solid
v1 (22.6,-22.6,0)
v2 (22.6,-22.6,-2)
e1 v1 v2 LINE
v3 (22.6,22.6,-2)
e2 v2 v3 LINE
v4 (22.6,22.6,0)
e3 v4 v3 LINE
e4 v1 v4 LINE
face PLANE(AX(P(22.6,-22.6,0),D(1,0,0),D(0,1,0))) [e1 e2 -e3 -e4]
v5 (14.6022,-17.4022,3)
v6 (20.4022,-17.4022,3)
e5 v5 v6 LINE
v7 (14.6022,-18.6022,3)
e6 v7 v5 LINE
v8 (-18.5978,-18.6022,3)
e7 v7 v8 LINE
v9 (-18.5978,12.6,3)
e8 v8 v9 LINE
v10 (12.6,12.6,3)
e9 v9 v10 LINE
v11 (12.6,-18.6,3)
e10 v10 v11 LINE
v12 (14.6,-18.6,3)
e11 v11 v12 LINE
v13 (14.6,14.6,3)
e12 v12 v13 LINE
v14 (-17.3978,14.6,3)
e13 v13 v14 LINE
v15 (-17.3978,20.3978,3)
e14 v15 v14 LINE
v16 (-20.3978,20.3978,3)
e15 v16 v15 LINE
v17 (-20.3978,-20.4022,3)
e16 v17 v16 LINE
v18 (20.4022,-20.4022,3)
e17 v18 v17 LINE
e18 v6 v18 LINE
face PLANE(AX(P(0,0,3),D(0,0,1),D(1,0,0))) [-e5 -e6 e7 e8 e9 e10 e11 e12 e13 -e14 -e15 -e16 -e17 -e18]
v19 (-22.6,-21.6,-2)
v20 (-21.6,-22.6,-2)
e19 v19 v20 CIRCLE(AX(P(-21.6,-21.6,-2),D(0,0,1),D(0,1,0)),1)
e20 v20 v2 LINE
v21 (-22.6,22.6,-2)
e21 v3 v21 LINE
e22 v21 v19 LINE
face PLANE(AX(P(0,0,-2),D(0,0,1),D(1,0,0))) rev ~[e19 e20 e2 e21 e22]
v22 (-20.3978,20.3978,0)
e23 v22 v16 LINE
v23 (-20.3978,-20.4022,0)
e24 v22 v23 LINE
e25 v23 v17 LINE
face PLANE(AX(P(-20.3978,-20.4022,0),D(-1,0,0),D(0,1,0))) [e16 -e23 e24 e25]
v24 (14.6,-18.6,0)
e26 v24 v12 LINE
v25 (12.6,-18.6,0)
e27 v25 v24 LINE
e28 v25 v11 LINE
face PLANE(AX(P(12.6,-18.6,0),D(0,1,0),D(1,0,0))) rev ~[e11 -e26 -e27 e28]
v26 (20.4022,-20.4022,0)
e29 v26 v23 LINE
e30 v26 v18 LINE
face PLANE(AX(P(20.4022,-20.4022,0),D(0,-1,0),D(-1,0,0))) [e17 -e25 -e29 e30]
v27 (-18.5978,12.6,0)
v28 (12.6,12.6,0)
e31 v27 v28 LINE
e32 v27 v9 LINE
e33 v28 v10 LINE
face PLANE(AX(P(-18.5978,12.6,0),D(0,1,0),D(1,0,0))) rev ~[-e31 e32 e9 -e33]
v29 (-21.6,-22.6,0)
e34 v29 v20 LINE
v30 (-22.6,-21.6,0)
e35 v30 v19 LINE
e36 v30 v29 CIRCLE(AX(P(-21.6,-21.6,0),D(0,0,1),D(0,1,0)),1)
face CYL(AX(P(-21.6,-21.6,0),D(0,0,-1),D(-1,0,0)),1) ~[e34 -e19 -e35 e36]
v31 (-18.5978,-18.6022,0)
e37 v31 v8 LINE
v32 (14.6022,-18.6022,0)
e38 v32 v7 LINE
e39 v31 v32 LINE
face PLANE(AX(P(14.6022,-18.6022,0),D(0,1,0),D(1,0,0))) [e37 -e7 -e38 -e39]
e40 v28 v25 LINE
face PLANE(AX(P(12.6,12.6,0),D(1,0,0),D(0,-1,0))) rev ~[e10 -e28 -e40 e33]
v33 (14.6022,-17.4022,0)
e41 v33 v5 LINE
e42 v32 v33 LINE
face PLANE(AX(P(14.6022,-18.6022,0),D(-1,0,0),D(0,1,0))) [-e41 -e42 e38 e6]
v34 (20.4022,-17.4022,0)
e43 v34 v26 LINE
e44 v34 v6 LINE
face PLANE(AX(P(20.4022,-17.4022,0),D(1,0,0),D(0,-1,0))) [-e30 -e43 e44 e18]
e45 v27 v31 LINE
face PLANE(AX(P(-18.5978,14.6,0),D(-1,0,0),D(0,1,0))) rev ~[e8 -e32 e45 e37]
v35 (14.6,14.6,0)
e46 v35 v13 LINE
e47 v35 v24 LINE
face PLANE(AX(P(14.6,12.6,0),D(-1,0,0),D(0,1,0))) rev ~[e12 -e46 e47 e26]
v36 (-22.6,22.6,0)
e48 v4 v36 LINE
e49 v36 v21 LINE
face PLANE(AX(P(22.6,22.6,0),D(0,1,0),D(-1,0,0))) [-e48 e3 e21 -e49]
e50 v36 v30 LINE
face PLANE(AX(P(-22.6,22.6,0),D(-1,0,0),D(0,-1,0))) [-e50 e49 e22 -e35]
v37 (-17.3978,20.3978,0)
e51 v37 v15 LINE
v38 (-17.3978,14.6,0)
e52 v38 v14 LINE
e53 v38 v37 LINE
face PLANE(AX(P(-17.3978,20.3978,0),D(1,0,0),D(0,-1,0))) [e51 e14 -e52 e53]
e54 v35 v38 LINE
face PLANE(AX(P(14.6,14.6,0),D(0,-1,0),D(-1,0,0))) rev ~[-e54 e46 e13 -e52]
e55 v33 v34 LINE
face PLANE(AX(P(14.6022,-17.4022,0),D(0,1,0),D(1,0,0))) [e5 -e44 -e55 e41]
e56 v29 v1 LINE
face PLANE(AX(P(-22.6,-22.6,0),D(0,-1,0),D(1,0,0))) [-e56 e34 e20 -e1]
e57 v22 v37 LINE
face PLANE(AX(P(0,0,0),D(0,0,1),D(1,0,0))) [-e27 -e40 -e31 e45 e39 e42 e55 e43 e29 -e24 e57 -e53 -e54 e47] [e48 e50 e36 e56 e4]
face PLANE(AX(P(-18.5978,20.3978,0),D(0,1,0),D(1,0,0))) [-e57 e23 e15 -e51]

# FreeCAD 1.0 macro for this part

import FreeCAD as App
import Part
import Sketcher

V = App.Vector
Q = App.Units.Quantity


def edges_at(feature, points):
    """Names of the edges that pass closest to the given points."""
    edges = feature.Shape.Edges
    near = lambda p: min(range(len(edges)), key=lambda i: edges[i].distToShape(Part.Vertex(*p))[0])
    return sorted({f"Edge{near(p) + 1}" for p in points})

doc = App.newDocument("Part")
body = doc.addObject("PartDesign::Body", "Body")

sketch1 = doc.addObject("Sketcher::SketchObject", "Sketch")
body.addObject(sketch1)
sketch1.AttachmentSupport = (doc.XY_Plane, [""])
sketch1.MapMode = "FlatFace"
sketch1.addGeometry(Part.LineSegment(V(-20.4, -20.4, 0), V(20.4, -20.4, 0)), False)
sketch1.addGeometry(Part.LineSegment(V(20.4, -20.4, 0), V(20.4, -18.6, 0)), False)
sketch1.addGeometry(Part.LineSegment(V(20.4, -18.6, 0), V(-18.6, -18.6, 0)), False)
sketch1.addGeometry(Part.LineSegment(V(-18.6, -18.6, 0), V(-18.6, 20.4, 0)), False)
sketch1.addGeometry(Part.LineSegment(V(-18.6, 20.4, 0), V(-20.4, 20.4, 0)), False)
sketch1.addGeometry(Part.LineSegment(V(-20.4, 20.4, 0), V(-20.4, -20.4, 0)), False)
sketch1.addConstraint(Sketcher.Constraint("Coincident", 0, 2, 1, 1))
sketch1.addConstraint(Sketcher.Constraint("Coincident", 1, 2, 2, 1))
sketch1.addConstraint(Sketcher.Constraint("Coincident", 2, 2, 3, 1))
sketch1.addConstraint(Sketcher.Constraint("Coincident", 3, 2, 4, 1))
sketch1.addConstraint(Sketcher.Constraint("Coincident", 4, 2, 5, 1))
sketch1.addConstraint(Sketcher.Constraint("Coincident", 5, 2, 0, 1))
sketch1.addConstraint(Sketcher.Constraint("Horizontal", 0))
sketch1.addConstraint(Sketcher.Constraint("Vertical", 1))
sketch1.addConstraint(Sketcher.Constraint("Horizontal", 2))
sketch1.addConstraint(Sketcher.Constraint("Vertical", 3))
sketch1.addConstraint(Sketcher.Constraint("Horizontal", 4))
sketch1.addConstraint(Sketcher.Constraint("Vertical", 5))
sketch1.addConstraint(Sketcher.Constraint("Equal", 4, 1))
sketch1.addConstraint(Sketcher.Constraint("Equal", 2, 3))
sketch1.addConstraint(Sketcher.Constraint("DistanceX", 2, 2, 2, 1, Q("39 mm")))
sketch1.addConstraint(Sketcher.Constraint("DistanceX", 4, 2, 4, 1, Q("1.8 mm")))
sketch1.addConstraint(Sketcher.Constraint("DistanceX", -1, 1, 0, 2, Q("20.4022 mm")))
sketch1.addConstraint(Sketcher.Constraint("DistanceY", 0, 2, -1, 1, Q("20.4022 mm")))
pad1 = doc.addObject("PartDesign::Pad", "Pad")
body.addObject(pad1)
pad1.Profile = sketch1
pad1.Length = 3

sketch2 = doc.addObject("Sketcher::SketchObject", "Sketch001")
body.addObject(sketch2)
sketch2.AttachmentSupport = (doc.XY_Plane, [""])
sketch2.MapMode = "FlatFace"
sketch2.addGeometry(Part.LineSegment(V(-23, 23, 0), V(-23, -23, 0)), False)
sketch2.addGeometry(Part.LineSegment(V(-23, -23, 0), V(23, -23, 0)), False)
sketch2.addGeometry(Part.LineSegment(V(23, -23, 0), V(23, 23, 0)), False)
sketch2.addGeometry(Part.LineSegment(V(23, 23, 0), V(-23, 23, 0)), False)
sketch2.addConstraint(Sketcher.Constraint("Coincident", 0, 2, 1, 1))
sketch2.addConstraint(Sketcher.Constraint("Coincident", 1, 2, 2, 1))
sketch2.addConstraint(Sketcher.Constraint("Coincident", 2, 2, 3, 1))
sketch2.addConstraint(Sketcher.Constraint("Coincident", 3, 2, 0, 1))
sketch2.addConstraint(Sketcher.Constraint("Vertical", 0))
sketch2.addConstraint(Sketcher.Constraint("Horizontal", 1))
sketch2.addConstraint(Sketcher.Constraint("Vertical", 2))
sketch2.addConstraint(Sketcher.Constraint("Horizontal", 3))
sketch2.addConstraint(Sketcher.Constraint("Symmetric", 0, 2, 2, 2, -1, 1))
sketch2.addConstraint(Sketcher.Constraint("Equal", 3, 0))
sketch2.addConstraint(Sketcher.Constraint("DistanceX", 1, 1, 1, 2, Q("45.2 mm")))
pad2 = doc.addObject("PartDesign::Pad", "Pad001")
body.addObject(pad2)
pad2.Profile = sketch2
pad2.Length = 2
pad2.Reversed = True

sketch3 = doc.addObject("Sketcher::SketchObject", "Sketch002")
body.addObject(sketch3)
sketch3.AttachmentSupport = (doc.XY_Plane, [""])
sketch3.MapMode = "FlatFace"
sketch3.addGeometry(Part.LineSegment(V(14.6, -18.6, 0), V(20.4, -18.6, 0)), False)
sketch3.addGeometry(Part.LineSegment(V(20.4, -18.6, 0), V(20.4, -17.4, 0)), False)
sketch3.addGeometry(Part.LineSegment(V(20.4, -17.4, 0), V(14.6, -17.4, 0)), False)
sketch3.addGeometry(Part.LineSegment(V(14.6, -17.4, 0), V(14.6, -18.6, 0)), False)
sketch3.addGeometry(Part.LineSegment(V(-17.4, 20.4, 0), V(-18.6, 20.4, 0)), False)
sketch3.addGeometry(Part.LineSegment(V(-18.6, 20.4, 0), V(-18.6, 14.6, 0)), False)
sketch3.addGeometry(Part.LineSegment(V(-18.6, 14.6, 0), V(-17.4, 14.6, 0)), False)
sketch3.addGeometry(Part.LineSegment(V(-17.4, 14.6, 0), V(-17.4, 20.4, 0)), False)
sketch3.addConstraint(Sketcher.Constraint("Coincident", 0, 2, 1, 1))
sketch3.addConstraint(Sketcher.Constraint("Coincident", 1, 2, 2, 1))
sketch3.addConstraint(Sketcher.Constraint("Coincident", 2, 2, 3, 1))
sketch3.addConstraint(Sketcher.Constraint("Coincident", 3, 2, 0, 1))
sketch3.addConstraint(Sketcher.Constraint("Coincident", 4, 2, 5, 1))
sketch3.addConstraint(Sketcher.Constraint("Coincident", 5, 2, 6, 1))
sketch3.addConstraint(Sketcher.Constraint("Coincident", 6, 2, 7, 1))
sketch3.addConstraint(Sketcher.Constraint("Coincident", 7, 2, 4, 1))
sketch3.addConstraint(Sketcher.Constraint("Horizontal", 0))
sketch3.addConstraint(Sketcher.Constraint("Vertical", 1))
sketch3.addConstraint(Sketcher.Constraint("Horizontal", 2))
sketch3.addConstraint(Sketcher.Constraint("Vertical", 3))
sketch3.addConstraint(Sketcher.Constraint("Horizontal", 4))
sketch3.addConstraint(Sketcher.Constraint("Vertical", 5))
sketch3.addConstraint(Sketcher.Constraint("Horizontal", 6))
sketch3.addConstraint(Sketcher.Constraint("Vertical", 7))
sketch3.addConstraint(Sketcher.Constraint("Equal", 6, 1))
sketch3.addConstraint(Sketcher.Constraint("Equal", 2, 5))
sketch3.addConstraint(Sketcher.Constraint("DistanceX", 0, 1, 0, 2, Q("5.8 mm")))
sketch3.addConstraint(Sketcher.Constraint("DistanceX", 4, 2, 4, 1, Q("1.2 mm")))
sketch3.addConstraint(Sketcher.Constraint("DistanceY", 3, 2, 4, 2, Q("39 mm")))
sketch3.addConstraint(Sketcher.Constraint("DistanceX", 4, 2, 1, 2, Q("39 mm")))
sketch3.addConstraint(Sketcher.Constraint("DistanceX", -1, 1, 0, 2, Q("20.4022 mm")))
sketch3.addConstraint(Sketcher.Constraint("DistanceY", 0, 2, -1, 1, Q("18.6022 mm")))
pad3 = doc.addObject("PartDesign::Pad", "Pad002")
body.addObject(pad3)
pad3.Profile = sketch3
pad3.Length = 3

sketch4 = doc.addObject("Sketcher::SketchObject", "Sketch003")
body.addObject(sketch4)
sketch4.AttachmentSupport = (doc.XY_Plane, [""])
sketch4.MapMode = "FlatFace"
sketch4.addGeometry(Part.LineSegment(V(-18.5978, 14.5978, 0), V(-18.5978, 12.6, 0)), False)
sketch4.addGeometry(Part.LineSegment(V(-18.5978, 12.6, 0), V(12.6, 12.6, 0)), False)
sketch4.addGeometry(Part.LineSegment(V(12.6, 12.6, 0), V(12.6, -18.6, 0)), False)
sketch4.addGeometry(Part.LineSegment(V(12.6, -18.6, 0), V(14.6, -18.6, 0)), False)
sketch4.addGeometry(Part.LineSegment(V(14.6, -18.6, 0), V(14.6, 14.6, 0)), False)
sketch4.addGeometry(Part.LineSegment(V(14.6, 14.6, 0), V(-17.3978, 14.6, 0)), False)
sketch4.addGeometry(Part.LineSegment(V(-17.3978, 14.6, 0), V(-17.3978, 14.5978, 0)), False)
sketch4.addGeometry(Part.LineSegment(V(-17.3978, 14.5978, 0), V(-18.5978, 14.5978, 0)), False)
sketch4.addConstraint(Sketcher.Constraint("Coincident", 0, 2, 1, 1))
sketch4.addConstraint(Sketcher.Constraint("Coincident", 1, 2, 2, 1))
sketch4.addConstraint(Sketcher.Constraint("Coincident", 2, 2, 3, 1))
sketch4.addConstraint(Sketcher.Constraint("Coincident", 3, 2, 4, 1))
sketch4.addConstraint(Sketcher.Constraint("Coincident", 4, 2, 5, 1))
sketch4.addConstraint(Sketcher.Constraint("Coincident", 5, 2, 6, 1))
sketch4.addConstraint(Sketcher.Constraint("Coincident", 6, 2, 7, 1))
sketch4.addConstraint(Sketcher.Constraint("Coincident", 7, 2, 0, 1))
sketch4.addConstraint(Sketcher.Constraint("Vertical", 0))
sketch4.addConstraint(Sketcher.Constraint("Horizontal", 1))
sketch4.addConstraint(Sketcher.Constraint("Vertical", 2))
sketch4.addConstraint(Sketcher.Constraint("Horizontal", 3))
sketch4.addConstraint(Sketcher.Constraint("Vertical", 4))
sketch4.addConstraint(Sketcher.Constraint("Horizontal", 5))
sketch4.addConstraint(Sketcher.Constraint("Vertical", 6))
sketch4.addConstraint(Sketcher.Constraint("Horizontal", 7))
sketch4.addConstraint(Sketcher.Constraint("DistanceX", 3, 1, 3, 2, Q("2 mm")))
sketch4.addConstraint(Sketcher.Constraint("DistanceX", 7, 2, 7, 1, Q("1.2 mm")))
sketch4.addConstraint(Sketcher.Constraint("DistanceY", 2, 2, 2, 1, Q("31.2 mm")))
sketch4.addConstraint(Sketcher.Constraint("DistanceY", 4, 1, 4, 2, Q("33.2 mm")))
sketch4.addConstraint(Sketcher.Constraint("DistanceY", -1, 1, 0, 2, Q("12.6 mm")))
sketch4.addConstraint(Sketcher.Constraint("DistanceX", -1, 1, 1, 2, Q("12.6 mm")))
sketch4.addConstraint(Sketcher.Constraint("DistanceX", 1, 1, 1, 2, Q("31.1978 mm")))
sketch4.addConstraint(Sketcher.Constraint("DistanceY", 0, 2, 0, 1, Q("1.9978 mm")))
pad4 = doc.addObject("PartDesign::Pad", "Pad003")
body.addObject(pad4)
pad4.Profile = sketch4
pad4.Length = 3
doc.recompute()

fillet = doc.addObject("PartDesign::Fillet", "Fillet")
body.addObject(fillet)
fillet.Base = (pad4, edges_at(pad4, [(-22.6, -22.6, -1)]))
fillet.Radius = 1

doc.recompute()
